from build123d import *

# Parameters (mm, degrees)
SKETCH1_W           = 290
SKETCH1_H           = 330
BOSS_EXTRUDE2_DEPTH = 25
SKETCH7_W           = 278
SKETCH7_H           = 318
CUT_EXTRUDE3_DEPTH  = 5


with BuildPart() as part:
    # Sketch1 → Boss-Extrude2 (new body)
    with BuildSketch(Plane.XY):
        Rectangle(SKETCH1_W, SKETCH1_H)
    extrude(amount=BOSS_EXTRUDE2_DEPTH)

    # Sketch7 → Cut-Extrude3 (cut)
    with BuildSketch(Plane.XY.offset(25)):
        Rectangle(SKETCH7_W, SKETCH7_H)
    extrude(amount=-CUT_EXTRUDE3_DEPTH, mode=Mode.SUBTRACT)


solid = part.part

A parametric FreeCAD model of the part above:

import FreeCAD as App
import Part
import Sketcher
Q = App.Units.Quantity


def add_polygon(sketch, points):
    """Adds a closed chain of lines whose ends are joined by coincident constraints."""
    first, n = sketch.GeometryCount, len(points)
    for a, b in zip(points, points[1:] + points[:1]):
        sketch.addGeometry(Part.LineSegment(App.Vector(*a, 0), App.Vector(*b, 0)), False)
    for i in range(n):
        sketch.addConstraint(Sketcher.Constraint("Coincident", first + i, 2, first + (i + 1) % n, 1))

doc = App.newDocument("Part")
body = doc.addObject("PartDesign::Body", "Body")

# Sketch on XY plane
sketch1 = body.newObject("Sketcher::SketchObject", "Sketch")
sketch1.AttachmentSupport = (doc.getObject("XY_Plane"), [""])
sketch1.MapMode = "FlatFace"
add_polygon(sketch1, [(-145, 165), (-145, -165), (145, -165), (145, 165)])  # lines 0-3
sketch1.addConstraint([
    Sketcher.Constraint("Vertical", 0),
    Sketcher.Constraint("Horizontal", 1),
    Sketcher.Constraint("Vertical", 2),
    Sketcher.Constraint("Horizontal", 3),
    Sketcher.Constraint("Symmetric", 0, 2, 2, 2, -1, 1),
    Sketcher.Constraint("DistanceX", 1, 1, 1, 2, Q("290 mm")),
    Sketcher.Constraint("DistanceY", 0, 2, 0, 1, Q("330 mm")),
])
pad1 = body.newObject("PartDesign::Pad", "Pad")
pad1.Profile = sketch1
pad1.Length = 25

# Sketch on XY plane
sketch2 = body.newObject("Sketcher::SketchObject", "Sketch001")
sketch2.AttachmentSupport = (doc.getObject("XY_Plane"), [""])
sketch2.MapMode = "FlatFace"
sketch2.AttachmentOffset = App.Placement(App.Vector(0, 0, 25), App.Rotation())
add_polygon(sketch2, [(-139, 159), (-139, -159), (139, -159), (139, 159)])  # lines 0-3
sketch2.addConstraint([
    Sketcher.Constraint("Vertical", 0),
    Sketcher.Constraint("Horizontal", 1),
    Sketcher.Constraint("Vertical", 2),
    Sketcher.Constraint("Horizontal", 3),
    Sketcher.Constraint("Symmetric", 0, 2, 2, 2, -1, 1),
    Sketcher.Constraint("DistanceX", 1, 1, 1, 2, Q("278 mm")),
    Sketcher.Constraint("DistanceY", 0, 2, 0, 1, Q("318 mm")),
])
pocket1 = body.newObject("PartDesign::Pocket", "Pocket")
pocket1.Profile = sketch2
pocket1.Length = 5

doc.recompute()
